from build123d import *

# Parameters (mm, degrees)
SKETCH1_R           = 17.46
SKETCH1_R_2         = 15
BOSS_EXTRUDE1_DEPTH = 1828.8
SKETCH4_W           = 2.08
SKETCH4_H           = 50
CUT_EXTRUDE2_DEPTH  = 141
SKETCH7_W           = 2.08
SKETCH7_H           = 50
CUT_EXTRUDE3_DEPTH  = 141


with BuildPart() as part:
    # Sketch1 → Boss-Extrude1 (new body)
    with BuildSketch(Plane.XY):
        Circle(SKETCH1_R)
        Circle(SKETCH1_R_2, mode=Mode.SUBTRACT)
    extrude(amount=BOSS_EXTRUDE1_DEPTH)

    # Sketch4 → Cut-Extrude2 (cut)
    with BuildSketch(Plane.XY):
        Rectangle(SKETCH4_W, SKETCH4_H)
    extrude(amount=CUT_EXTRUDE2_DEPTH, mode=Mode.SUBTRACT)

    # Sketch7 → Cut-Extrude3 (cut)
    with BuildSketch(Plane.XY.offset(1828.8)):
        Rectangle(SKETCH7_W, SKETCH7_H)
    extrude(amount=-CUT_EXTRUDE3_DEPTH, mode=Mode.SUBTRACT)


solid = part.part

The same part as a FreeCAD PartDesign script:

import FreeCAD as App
import Part
import Sketcher

V = App.Vector


def add_polygon(sketch, points):
    """Adds a closed chain of lines whose ends are joined by coincident constraints."""
    first, n = sketch.GeometryCount, len(points)
    for a, b in zip(points, points[1:] + points[:1]):
        sketch.addGeometry(Part.LineSegment(App.Vector(*a, 0), App.Vector(*b, 0)), False)
    for i in range(n):
        sketch.addConstraint(Sketcher.Constraint("Coincident", first + i, 2, first + (i + 1) % n, 1))

doc = App.newDocument("Part")
params = doc.addObject("Spreadsheet::Sheet", "Params")
for row, (alias, value) in enumerate([
    ("sketch1_diameter", "30 mm"),
    ("sketch1_diameter2", "34.92 mm"),
    ("pad1_length", "1828.8 mm"),
    ("sketch2_height", "50 mm"),
    ("sketch2_width", "2.08 mm"),
    ("pocket1_length", "141 mm"),
    ("sketch3_height", "50 mm"),
    ("sketch3_width", "2.08 mm"),
    ("pocket2_length", "141 mm"),
], start=1):
    params.set(f"A{row}", alias)
    params.set(f"B{row}", "=" + value)
    params.setAlias(f"B{row}", alias)

body = doc.addObject("PartDesign::Body", "Body")

sketch1 = body.newObject("Sketcher::SketchObject", "Sketch")
sketch1.AttachmentSupport = (doc.getObject("XY_Plane"), [""])
sketch1.MapMode = "FlatFace"
sketch1.addGeometry([
    Part.Circle(V(0, 0, 0), V(0, 0, 1), 17),
    Part.Circle(V(0, 0, 0), V(0, 0, 1), 15),
], False)
sketch1.addConstraint([
    Sketcher.Constraint("Coincident", 0, 3, -1, 1),
    Sketcher.Constraint("Coincident", 1, 3, -1, 1),
    Sketcher.Constraint("Diameter", 1, 30.0),
    Sketcher.Constraint("Diameter", 0, 34.92),
])
sketch1.setExpression("Constraints[2]", "Params.sketch1_diameter")
sketch1.setExpression("Constraints[3]", "Params.sketch1_diameter2")
pad1 = body.newObject("PartDesign::Pad", "Pad")
pad1.Profile = sketch1
pad1.setExpression("Length", "Params.pad1_length")

sketch2 = body.newObject("Sketcher::SketchObject", "Sketch001")
sketch2.AttachmentSupport = (doc.getObject("XY_Plane"), [""])
sketch2.MapMode = "FlatFace"
add_polygon(sketch2, [(-1, 25), (-1, -25), (1, -25), (1, 25)])
sketch2.addConstraint([
    Sketcher.Constraint("Vertical", 0),
    Sketcher.Constraint("Horizontal", 1),
    Sketcher.Constraint("Vertical", 2),
    Sketcher.Constraint("Horizontal", 3),
    Sketcher.Constraint("Symmetric", 0, 2, 2, 2, -1, 1),
    Sketcher.Constraint("DistanceY", 0, 2, 0, 1, 50.0),
    Sketcher.Constraint("DistanceX", 1, 1, 1, 2, 2.08),
])
sketch2.setExpression("Constraints[9]", "Params.sketch2_height")
sketch2.setExpression("Constraints[10]", "Params.sketch2_width")
pocket1 = body.newObject("PartDesign::Pocket", "Pocket")
pocket1.Profile = sketch2
pocket1.setExpression("Length", "Params.pocket1_length")
pocket1.Reversed = True

sketch3 = body.newObject("Sketcher::SketchObject", "Sketch002")
sketch3.AttachmentSupport = (doc.getObject("XY_Plane"), [""])
sketch3.MapMode = "FlatFace"
sketch3.AttachmentOffset = App.Placement(V(0, 0, 1828.8), App.Rotation())
add_polygon(sketch3, [(-1, 25), (-1, -25), (1, -25), (1, 25)])
sketch3.addConstraint([
    Sketcher.Constraint("Vertical", 0),
    Sketcher.Constraint("Horizontal", 1),
    Sketcher.Constraint("Vertical", 2),
    Sketcher.Constraint("Horizontal", 3),
    Sketcher.Constraint("Symmetric", 0, 2, 2, 2, -1, 1),
    Sketcher.Constraint("DistanceY", 0, 2, 0, 1, 50.0),
    Sketcher.Constraint("DistanceX", 1, 1, 1, 2, 2.08),
])
sketch3.setExpression("Constraints[9]", "Params.sketch3_height")
sketch3.setExpression("Constraints[10]", "Params.sketch3_width")
pocket2 = body.newObject("PartDesign::Pocket", "Pocket001")
pocket2.Profile = sketch3
pocket2.setExpression("Length", "Params.pocket2_length")

doc.recompute()
